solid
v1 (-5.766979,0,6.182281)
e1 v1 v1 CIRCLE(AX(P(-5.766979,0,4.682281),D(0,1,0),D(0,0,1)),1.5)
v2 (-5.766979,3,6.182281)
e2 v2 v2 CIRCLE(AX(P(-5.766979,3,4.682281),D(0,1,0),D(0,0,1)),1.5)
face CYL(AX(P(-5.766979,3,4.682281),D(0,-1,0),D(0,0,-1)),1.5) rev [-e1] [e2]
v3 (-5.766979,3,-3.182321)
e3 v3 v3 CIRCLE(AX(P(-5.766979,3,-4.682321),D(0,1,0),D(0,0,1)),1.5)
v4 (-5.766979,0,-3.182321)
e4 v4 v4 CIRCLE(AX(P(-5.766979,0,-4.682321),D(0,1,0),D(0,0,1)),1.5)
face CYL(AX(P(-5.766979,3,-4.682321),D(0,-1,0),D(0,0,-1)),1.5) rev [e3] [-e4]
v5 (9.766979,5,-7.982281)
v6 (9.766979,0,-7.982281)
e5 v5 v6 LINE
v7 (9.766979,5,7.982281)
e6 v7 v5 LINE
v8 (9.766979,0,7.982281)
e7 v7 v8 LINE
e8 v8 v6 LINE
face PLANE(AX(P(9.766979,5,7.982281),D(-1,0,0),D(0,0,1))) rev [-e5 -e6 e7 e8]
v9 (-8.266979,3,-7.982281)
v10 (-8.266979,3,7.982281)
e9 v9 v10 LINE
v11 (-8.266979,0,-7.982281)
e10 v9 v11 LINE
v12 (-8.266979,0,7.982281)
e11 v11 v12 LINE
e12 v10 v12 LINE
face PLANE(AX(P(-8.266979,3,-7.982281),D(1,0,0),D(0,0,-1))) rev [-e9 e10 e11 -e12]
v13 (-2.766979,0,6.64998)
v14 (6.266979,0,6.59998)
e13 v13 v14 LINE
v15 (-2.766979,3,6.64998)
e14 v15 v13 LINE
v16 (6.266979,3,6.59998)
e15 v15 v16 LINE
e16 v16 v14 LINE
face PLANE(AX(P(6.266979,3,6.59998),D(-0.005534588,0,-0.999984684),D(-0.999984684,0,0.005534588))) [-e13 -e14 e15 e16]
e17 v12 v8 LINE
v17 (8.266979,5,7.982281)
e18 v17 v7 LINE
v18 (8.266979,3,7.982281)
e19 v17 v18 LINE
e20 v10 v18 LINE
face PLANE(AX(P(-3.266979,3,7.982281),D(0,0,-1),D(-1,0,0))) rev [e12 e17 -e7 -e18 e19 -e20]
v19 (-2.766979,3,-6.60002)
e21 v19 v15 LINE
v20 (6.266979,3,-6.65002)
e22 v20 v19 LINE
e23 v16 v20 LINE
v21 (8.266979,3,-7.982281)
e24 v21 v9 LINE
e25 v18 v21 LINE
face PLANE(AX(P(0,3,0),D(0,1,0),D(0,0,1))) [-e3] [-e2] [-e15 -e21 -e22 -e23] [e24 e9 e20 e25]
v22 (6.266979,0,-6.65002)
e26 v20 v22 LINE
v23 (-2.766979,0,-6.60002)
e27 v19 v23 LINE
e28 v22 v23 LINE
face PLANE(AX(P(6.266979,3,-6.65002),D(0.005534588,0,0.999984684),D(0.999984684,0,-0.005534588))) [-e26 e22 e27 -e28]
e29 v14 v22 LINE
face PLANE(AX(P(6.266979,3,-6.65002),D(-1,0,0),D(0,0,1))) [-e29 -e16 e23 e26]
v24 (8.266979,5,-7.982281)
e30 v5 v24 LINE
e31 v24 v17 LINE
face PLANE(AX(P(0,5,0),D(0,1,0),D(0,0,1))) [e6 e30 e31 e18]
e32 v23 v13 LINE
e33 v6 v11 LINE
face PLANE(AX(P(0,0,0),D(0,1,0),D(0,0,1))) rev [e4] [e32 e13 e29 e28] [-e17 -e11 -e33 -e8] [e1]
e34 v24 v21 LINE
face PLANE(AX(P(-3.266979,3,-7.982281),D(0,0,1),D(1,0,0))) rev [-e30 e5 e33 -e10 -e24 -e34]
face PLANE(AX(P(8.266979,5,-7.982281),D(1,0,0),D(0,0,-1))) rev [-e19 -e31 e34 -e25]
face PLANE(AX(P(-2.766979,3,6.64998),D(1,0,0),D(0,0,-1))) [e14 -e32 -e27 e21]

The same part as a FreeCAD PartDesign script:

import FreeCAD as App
import Part
import Sketcher

V = App.Vector
Q = App.Units.Quantity

doc = App.newDocument("Part")
body = doc.addObject("PartDesign::Body", "Body")

# Sketch on XZ plane
sketch1 = body.newObject("Sketcher::SketchObject", "Sketch")
sketch1.AttachmentSupport = (doc.getObject("XZ_Plane"), [""])
sketch1.MapMode = "FlatFace"
sketch1.addGeometry([
    Part.LineSegment(V(-8.3, -8, 0), V(-8.3, 8, 0)),  # 0
    Part.LineSegment(V(-8.3, 8, 0), V(8.3, 8, 0)),  # 1
    Part.LineSegment(V(8.3, 8, 0), V(8.3, -8, 0)),  # 2
    Part.LineSegment(V(8.3, -8, 0), V(-8.3, -8, 0)),  # 3
    Part.Circle(V(-5.8, 4.7, 0), V(0, 0, 1), 1.5),  # 4
    Part.Circle(V(-5.8, -4.7, 0), V(0, 0, 1), 1.5),  # 5
    Part.LineSegment(V(6.3, 6.6, 0), V(-2.8, 6.6, 0)),  # 6
    Part.LineSegment(V(-2.8, 6.6, 0), V(-2.8, -6.6, 0)),  # 7
    Part.LineSegment(V(-2.8, -6.6, 0), V(6.3, -6.7, 0)),  # 8
    Part.LineSegment(V(6.3, -6.7, 0), V(6.3, 6.6, 0)),  # 9
], False)
sketch1.addConstraint([
    Sketcher.Constraint("Coincident", 0, 2, 1, 1),
    Sketcher.Constraint("Coincident", 1, 2, 2, 1),
    Sketcher.Constraint("Coincident", 2, 2, 3, 1),
    Sketcher.Constraint("Coincident", 3, 2, 0, 1),
    Sketcher.Constraint("Coincident", 6, 2, 7, 1),
    Sketcher.Constraint("Coincident", 7, 2, 8, 1),
    Sketcher.Constraint("Coincident", 8, 2, 9, 1),
    Sketcher.Constraint("Coincident", 9, 2, 6, 1),
    Sketcher.Constraint("Vertical", 0),
    Sketcher.Constraint("Horizontal", 1),
    Sketcher.Constraint("Vertical", 2),
    Sketcher.Constraint("Horizontal", 3),
    Sketcher.Constraint("Vertical", 7),
    Sketcher.Constraint("Vertical", 9),
    Sketcher.Constraint("Equal", 4, 5),
    Sketcher.Constraint("Symmetric", 0, 2, 2, 2, -1, 1),
    Sketcher.Constraint("Parallel", 6, 8),
    Sketcher.Constraint("Vertical", 4, 3, 5, 3),
    Sketcher.Constraint("Diameter", 4, Q("3 mm")),
    Sketcher.Constraint("DistanceX", 4, 3, 6, 2, Q("3 mm")),
    Sketcher.Constraint("DistanceX", 8, 2, 2, 2, Q("2 mm")),
    Sketcher.Constraint("DistanceY", 7, 2, 7, 1, Q("13.25 mm")),
    Sketcher.Constraint("DistanceX", 0, 2, 4, 3, Q("2.5 mm")),
    Sketcher.Constraint("DistanceY", 4, 3, 0, 2, Q("3.3 mm")),
    Sketcher.Constraint("DistanceY", 8, 2, 7, 2, Q("0.05 mm")),
    Sketcher.Constraint("DistanceY", 0, 1, 0, 2, Q("15.964562 mm")),
    Sketcher.Constraint("DistanceY", 4, 3, 6, 2, Q("1.967699 mm")),
    Sketcher.Constraint("DistanceY", 5, 3, 6, 2, Q("11.332301 mm")),
    Sketcher.Constraint("DistanceX", 1, 1, 1, 2, Q("16.533958 mm")),
])
pad1 = body.newObject("PartDesign::Pad", "Pad")
pad1.Profile = sketch1
pad1.Length = 3
pad1.Reversed = True

# Sketch on XZ plane
sketch2 = body.newObject("Sketcher::SketchObject", "Sketch001")
sketch2.AttachmentSupport = (doc.getObject("XZ_Plane"), [""])
sketch2.MapMode = "FlatFace"
sketch2.addGeometry([
    Part.LineSegment(V(8.3, -8, 0), V(8.3, 8, 0)),
    Part.LineSegment(V(8.3, 8, 0), V(9.8, 8, 0)),
    Part.LineSegment(V(9.8, 8, 0), V(9.8, -8, 0)),
    Part.LineSegment(V(9.8, -8, 0), V(8.3, -8, 0)),
], False)
sketch2.addConstraint([
    Sketcher.Constraint("Coincident", 0, 2, 1, 1),
    Sketcher.Constraint("Coincident", 1, 2, 2, 1),
    Sketcher.Constraint("Coincident", 2, 2, 3, 1),
    Sketcher.Constraint("Coincident", 3, 2, 0, 1),
    Sketcher.Constraint("Vertical", 0),
    Sketcher.Constraint("Horizontal", 1),
    Sketcher.Constraint("Vertical", 2),
    Sketcher.Constraint("Horizontal", 3),
    Sketcher.Constraint("DistanceX", 1, 1, 1, 2, Q("1.5 mm")),
    Sketcher.Constraint("DistanceY", 0, 1, 0, 2, Q("15.964562 mm")),
    Sketcher.Constraint("DistanceX", -1, 1, 0, 2, Q("8.266979 mm")),
    Sketcher.Constraint("DistanceY", -1, 1, 0, 2, Q("7.982281 mm")),
])
pad2 = body.newObject("PartDesign::Pad", "Pad001")
pad2.Profile = sketch2
pad2.Length = 5
pad2.Reversed = True

doc.recompute()
